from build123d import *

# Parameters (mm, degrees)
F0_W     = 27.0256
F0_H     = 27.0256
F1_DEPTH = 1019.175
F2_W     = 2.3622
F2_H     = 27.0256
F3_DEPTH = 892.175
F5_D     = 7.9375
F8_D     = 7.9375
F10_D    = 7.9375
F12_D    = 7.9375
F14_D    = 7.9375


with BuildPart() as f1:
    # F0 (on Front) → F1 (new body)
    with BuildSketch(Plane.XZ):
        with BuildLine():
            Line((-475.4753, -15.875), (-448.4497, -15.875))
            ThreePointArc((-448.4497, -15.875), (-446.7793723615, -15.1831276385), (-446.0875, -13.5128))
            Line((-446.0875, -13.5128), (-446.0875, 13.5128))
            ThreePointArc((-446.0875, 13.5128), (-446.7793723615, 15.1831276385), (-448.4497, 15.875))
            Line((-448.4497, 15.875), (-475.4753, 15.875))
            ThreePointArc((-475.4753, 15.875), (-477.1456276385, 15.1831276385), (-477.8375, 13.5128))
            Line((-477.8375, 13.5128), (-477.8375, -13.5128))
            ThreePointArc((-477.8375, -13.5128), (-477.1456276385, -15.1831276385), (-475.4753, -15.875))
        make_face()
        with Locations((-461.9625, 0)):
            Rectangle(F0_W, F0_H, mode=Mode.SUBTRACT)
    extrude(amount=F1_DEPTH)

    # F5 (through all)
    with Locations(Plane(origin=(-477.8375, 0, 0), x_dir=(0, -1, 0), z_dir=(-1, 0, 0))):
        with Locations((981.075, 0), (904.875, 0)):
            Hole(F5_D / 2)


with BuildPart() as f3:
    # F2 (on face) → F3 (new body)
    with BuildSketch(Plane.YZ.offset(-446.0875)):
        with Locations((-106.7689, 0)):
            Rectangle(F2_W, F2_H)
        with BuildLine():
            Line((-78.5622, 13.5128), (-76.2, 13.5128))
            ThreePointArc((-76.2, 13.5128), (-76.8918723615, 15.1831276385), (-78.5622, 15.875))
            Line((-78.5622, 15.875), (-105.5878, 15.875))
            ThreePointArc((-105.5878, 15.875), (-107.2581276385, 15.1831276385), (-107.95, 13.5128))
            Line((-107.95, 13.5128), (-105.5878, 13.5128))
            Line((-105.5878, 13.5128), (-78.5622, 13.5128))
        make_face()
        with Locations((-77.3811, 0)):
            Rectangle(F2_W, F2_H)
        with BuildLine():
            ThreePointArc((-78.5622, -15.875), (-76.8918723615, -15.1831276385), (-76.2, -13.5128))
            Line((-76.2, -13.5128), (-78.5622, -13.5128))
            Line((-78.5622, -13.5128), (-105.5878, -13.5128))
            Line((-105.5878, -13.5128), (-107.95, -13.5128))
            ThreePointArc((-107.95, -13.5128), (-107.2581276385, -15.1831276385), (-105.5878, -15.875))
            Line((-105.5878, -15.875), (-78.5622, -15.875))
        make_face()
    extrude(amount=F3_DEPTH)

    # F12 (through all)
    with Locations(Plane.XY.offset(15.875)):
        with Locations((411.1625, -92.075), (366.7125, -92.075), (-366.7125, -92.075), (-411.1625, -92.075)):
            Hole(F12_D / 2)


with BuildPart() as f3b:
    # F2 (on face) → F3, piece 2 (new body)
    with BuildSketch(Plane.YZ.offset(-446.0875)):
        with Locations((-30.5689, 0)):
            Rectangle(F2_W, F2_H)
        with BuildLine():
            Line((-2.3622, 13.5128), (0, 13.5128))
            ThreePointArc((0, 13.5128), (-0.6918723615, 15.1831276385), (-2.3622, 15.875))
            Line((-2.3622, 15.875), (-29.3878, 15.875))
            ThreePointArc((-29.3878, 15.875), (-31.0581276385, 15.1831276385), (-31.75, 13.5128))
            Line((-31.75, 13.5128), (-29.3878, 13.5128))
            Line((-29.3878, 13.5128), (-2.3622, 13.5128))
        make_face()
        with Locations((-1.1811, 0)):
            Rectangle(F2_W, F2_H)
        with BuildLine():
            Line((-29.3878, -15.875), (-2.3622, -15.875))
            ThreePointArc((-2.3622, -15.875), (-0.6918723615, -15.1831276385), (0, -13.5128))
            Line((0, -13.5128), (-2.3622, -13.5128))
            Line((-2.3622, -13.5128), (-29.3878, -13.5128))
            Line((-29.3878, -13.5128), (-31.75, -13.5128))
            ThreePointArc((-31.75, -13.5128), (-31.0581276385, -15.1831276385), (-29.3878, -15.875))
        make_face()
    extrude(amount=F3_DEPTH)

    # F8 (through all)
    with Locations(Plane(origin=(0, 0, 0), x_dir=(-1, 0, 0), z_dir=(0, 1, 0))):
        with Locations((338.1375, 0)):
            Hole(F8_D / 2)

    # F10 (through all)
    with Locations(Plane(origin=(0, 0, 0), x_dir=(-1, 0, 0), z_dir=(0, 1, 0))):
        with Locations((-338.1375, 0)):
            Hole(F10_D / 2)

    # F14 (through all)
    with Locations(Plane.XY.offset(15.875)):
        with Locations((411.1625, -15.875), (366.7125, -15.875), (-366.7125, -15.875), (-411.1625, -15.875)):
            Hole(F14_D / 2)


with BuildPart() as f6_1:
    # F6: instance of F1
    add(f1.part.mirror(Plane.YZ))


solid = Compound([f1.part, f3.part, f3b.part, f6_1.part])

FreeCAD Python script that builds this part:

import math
import FreeCAD as App
import Part
import Sketcher
from FreeCAD import Vector
Q = App.Units.Quantity


def add_polygon(sketch, points):
    """Adds a closed chain of lines whose ends are joined by coincident constraints."""
    first, n = sketch.GeometryCount, len(points)
    for a, b in zip(points, points[1:] + points[:1]):
        sketch.addGeometry(Part.LineSegment(App.Vector(*a, 0), App.Vector(*b, 0)), False)
    for i in range(n):
        sketch.addConstraint(Sketcher.Constraint("Coincident", first + i, 2, first + (i + 1) % n, 1))

doc = App.newDocument("Part")
params = doc.addObject("Spreadsheet::Sheet", "Params")
for row, (alias, value) in enumerate([
    ("sketch1_radius", "0.093 in"),
    ("sketch1_width", "1.064 in"),
    ("pad1_length", "40.125 in"),
    ("sketch2_diameter", "0.3125 in"),
    ("hole_diameter", "0.3125 in"),
    ("sketch3_radius", "0.093 in"),
    ("sketch3_width", "1.064 in"),
    ("pad2_length", "35.125 in"),
    ("sketch4_diameter", "0.3125 in"),
    ("hole2_diameter", "0.3125 in"),
    ("sketch5_radius", "0.093 in"),
    ("sketch5_width", "1.064 in"),
    ("pad3_length", "35.125 in"),
    ("sketch6_diameter", "0.3125 in"),
    ("hole3_diameter", "0.3125 in"),
    ("sketch7_diameter", "0.3125 in"),
    ("hole4_diameter", "0.3125 in"),
    ("sketch8_diameter", "0.3125 in"),
    ("hole5_diameter", "0.3125 in"),
], start=1):
    params.set(f"A{row}", alias)
    params.set(f"B{row}", "=" + value)
    params.setAlias(f"B{row}", alias)

body = doc.addObject("PartDesign::Body", "Body")

# Sketch on XZ plane
sketch1 = body.newObject("Sketcher::SketchObject", "Sketch")
sketch1.AttachmentSupport = (doc.getObject("XZ_Plane"), [""])
sketch1.MapMode = "FlatFace"
sketch1.addGeometry(Part.LineSegment(Vector(-475.5, -15.9, 0), Vector(-448.4, -15.9, 0)), False)  # 0
sketch1.addGeometry(Part.ArcOfCircle(Part.Circle(Vector(-448.4, -13.5, 0), Vector(0, 0, 1), 2.4), math.radians(-90), math.radians(0)), False)  # 1
sketch1.addGeometry(Part.LineSegment(Vector(-446.1, -13.5, 0), Vector(-446.1, 13.5, 0)), False)  # 2
sketch1.addGeometry(Part.ArcOfCircle(Part.Circle(Vector(-448.4, 13.5, 0), Vector(0, 0, 1), 2.4), math.radians(0), math.radians(90)), False)  # 3
sketch1.addGeometry(Part.LineSegment(Vector(-448.4, 15.9, 0), Vector(-475.5, 15.9, 0)), False)  # 4
sketch1.addGeometry(Part.ArcOfCircle(Part.Circle(Vector(-475.5, 13.5, 0), Vector(0, 0, 1), 2.4), math.radians(90), math.radians(180)), False)  # 5
sketch1.addGeometry(Part.LineSegment(Vector(-477.8, 13.5, 0), Vector(-477.8, -13.5, 0)), False)  # 6
sketch1.addGeometry(Part.ArcOfCircle(Part.Circle(Vector(-475.5, -13.5, 0), Vector(0, 0, 1), 2.4), math.radians(180), math.radians(270)), False)  # 7
add_polygon(sketch1, [(-448.4, -13.5), (-475.5, -13.5), (-475.5, 13.5), (-448.4, 13.5)])  # lines 8-11
sketch1.addConstraint(Sketcher.Constraint("Tangent", 0, 2, 1, 1))
sketch1.addConstraint(Sketcher.Constraint("Tangent", 1, 2, 2, 1))
sketch1.addConstraint(Sketcher.Constraint("Tangent", 2, 2, 3, 1))
sketch1.addConstraint(Sketcher.Constraint("Tangent", 3, 2, 4, 1))
sketch1.addConstraint(Sketcher.Constraint("Tangent", 4, 2, 5, 1))
sketch1.addConstraint(Sketcher.Constraint("Tangent", 5, 2, 6, 1))
sketch1.addConstraint(Sketcher.Constraint("Tangent", 6, 2, 7, 1))
sketch1.addConstraint(Sketcher.Constraint("Tangent", 7, 2, 0, 1))
sketch1.addConstraint(Sketcher.Constraint("Horizontal", 0))
sketch1.addConstraint(Sketcher.Constraint("Vertical", 2))
sketch1.addConstraint(Sketcher.Constraint("Horizontal", 4))
sketch1.addConstraint(Sketcher.Constraint("Vertical", 6))
sketch1.addConstraint(Sketcher.Constraint("Horizontal", 8))
sketch1.addConstraint(Sketcher.Constraint("Vertical", 9))
sketch1.addConstraint(Sketcher.Constraint("Horizontal", 10))
sketch1.addConstraint(Sketcher.Constraint("Vertical", 11))
sketch1.addConstraint(Sketcher.Constraint("Coincident", 8, 2, 7, 3))
sketch1.addConstraint(Sketcher.Constraint("Coincident", 9, 2, 5, 3))
sketch1.addConstraint(Sketcher.Constraint("Coincident", 10, 2, 3, 3))
sketch1.addConstraint(Sketcher.Constraint("Equal", 1, 3))
sketch1.addConstraint(Sketcher.Constraint("Equal", 10, 2))
sketch1.addConstraint(Sketcher.Constraint("Radius", 1, Q("0.093 in")))
sketch1.addConstraint(Sketcher.Constraint("DistanceX", 0, 1, 0, 2, Q("1.064 in")))
sketch1.addConstraint(Sketcher.Constraint("DistanceY", 1, 3, -1, 1, Q("0.532 in")))
sketch1.addConstraint(Sketcher.Constraint("DistanceX", 1, 2, -1, 1, Q("17.5625 in")))
sketch1.setExpression("Constraints[25]", "Params.sketch1_radius")
sketch1.setExpression("Constraints[26]", "Params.sketch1_width")
pad1 = body.newObject("PartDesign::Pad", "Pad")
pad1.Profile = sketch1
pad1.setExpression("Length", "Params.pad1_length")

# Sketch on YZ plane
sketch2 = body.newObject("Sketcher::SketchObject", "Sketch001")
sketch2.AttachmentSupport = (doc.getObject("YZ_Plane"), [""])
sketch2.MapMode = "FlatFace"
sketch2.AttachmentOffset = App.Placement(Vector(0, 0, -18.8125 * 25.4), App.Rotation())
sketch2.addGeometry(Part.Circle(Vector(-981.1, 0, 0), Vector(0, 0, 1), 4), False)
sketch2.addGeometry(Part.Circle(Vector(-904.9, 0, 0), Vector(0, 0, 1), 4), False)
sketch2.addConstraint(Sketcher.Constraint("Equal", 0, 1))
sketch2.addConstraint(Sketcher.Constraint("PointOnObject", 0, 3, -1))
sketch2.addConstraint(Sketcher.Constraint("PointOnObject", 1, 3, -1))
sketch2.addConstraint(Sketcher.Constraint("Diameter", 0, Q("0.3125 in")))
sketch2.addConstraint(Sketcher.Constraint("DistanceX", 0, 3, 1, 3, Q("3 in")))
sketch2.addConstraint(Sketcher.Constraint("DistanceX", 0, 3, -1, 1, Q("38.625 in")))
sketch2.setExpression("Constraints[3]", "Params.sketch2_diameter")
doc.recompute()
hole = body.newObject("PartDesign::Hole", "Hole")
hole.Profile = sketch2
hole.ThreadType = "None"
hole.setExpression("Diameter", "Params.hole_diameter")
hole.DepthType = "ThroughAll"
hole.Reversed = True
body2 = doc.addObject("PartDesign::Body", "Body001")

# Sketch on YZ plane
sketch3 = body2.newObject("Sketcher::SketchObject", "Sketch002")
sketch3.AttachmentSupport = (doc.getObject("YZ_Plane001"), [""])
sketch3.MapMode = "FlatFace"
sketch3.AttachmentOffset = App.Placement(Vector(0, 0, -17.5625 * 25.4), App.Rotation())
sketch3.addGeometry(Part.LineSegment(Vector(-108, 13.5, 0), Vector(-108, -13.5, 0)), False)  # 0
sketch3.addGeometry(Part.ArcOfCircle(Part.Circle(Vector(-105.6, -13.5, 0), Vector(0, 0, 1), 2.4), math.radians(180), math.radians(270)), False)  # 1
sketch3.addGeometry(Part.LineSegment(Vector(-105.6, -15.9, 0), Vector(-78.6, -15.9, 0)), False)  # 2
sketch3.addGeometry(Part.ArcOfCircle(Part.Circle(Vector(-78.6, -13.5, 0), Vector(0, 0, 1), 2.4), math.radians(-90), math.radians(0)), False)  # 3
sketch3.addGeometry(Part.LineSegment(Vector(-76.2, -13.5, 0), Vector(-76.2, 13.5, 0)), False)  # 4
sketch3.addGeometry(Part.ArcOfCircle(Part.Circle(Vector(-78.6, 13.5, 0), Vector(0, 0, 1), 2.4), math.radians(0), math.radians(90)), False)  # 5
sketch3.addGeometry(Part.LineSegment(Vector(-78.6, 15.9, 0), Vector(-105.6, 15.9, 0)), False)  # 6
sketch3.addGeometry(Part.ArcOfCircle(Part.Circle(Vector(-105.6, 13.5, 0), Vector(0, 0, 1), 2.4), math.radians(90), math.radians(180)), False)  # 7
add_polygon(sketch3, [(-105.6, -13.5), (-105.6, 13.5), (-78.6, 13.5), (-78.6, -13.5)])  # lines 8-11
sketch3.addConstraint(Sketcher.Constraint("Tangent", 0, 2, 1, 1))
sketch3.addConstraint(Sketcher.Constraint("Tangent", 1, 2, 2, 1))
sketch3.addConstraint(Sketcher.Constraint("Tangent", 2, 2, 3, 1))
sketch3.addConstraint(Sketcher.Constraint("Tangent", 3, 2, 4, 1))
sketch3.addConstraint(Sketcher.Constraint("Tangent", 4, 2, 5, 1))
sketch3.addConstraint(Sketcher.Constraint("Tangent", 5, 2, 6, 1))
sketch3.addConstraint(Sketcher.Constraint("Tangent", 6, 2, 7, 1))
sketch3.addConstraint(Sketcher.Constraint("Tangent", 7, 2, 0, 1))
sketch3.addConstraint(Sketcher.Constraint("Vertical", 0))
sketch3.addConstraint(Sketcher.Constraint("Horizontal", 2))
sketch3.addConstraint(Sketcher.Constraint("Vertical", 4))
sketch3.addConstraint(Sketcher.Constraint("Horizontal", 6))
sketch3.addConstraint(Sketcher.Constraint("Vertical", 8))
sketch3.addConstraint(Sketcher.Constraint("Horizontal", 9))
sketch3.addConstraint(Sketcher.Constraint("Vertical", 10))
sketch3.addConstraint(Sketcher.Constraint("Horizontal", 11))
sketch3.addConstraint(Sketcher.Constraint("Coincident", 8, 2, 7, 3))
sketch3.addConstraint(Sketcher.Constraint("Coincident", 9, 2, 5, 3))
sketch3.addConstraint(Sketcher.Constraint("Coincident", 10, 2, 3, 3))
sketch3.addConstraint(Sketcher.Constraint("Equal", 1, 3))
sketch3.addConstraint(Sketcher.Constraint("Equal", 11, 0))
sketch3.addConstraint(Sketcher.Constraint("DistanceX", 3, 2, -1, 1, Q("3 in")))
sketch3.addConstraint(Sketcher.Constraint("Radius", 1, Q("0.093 in")))
sketch3.addConstraint(Sketcher.Constraint("DistanceX", 2, 1, 2, 2, Q("1.064 in")))
sketch3.addConstraint(Sketcher.Constraint("DistanceY", 1, 3, -1, 1, Q("0.532 in")))
sketch3.setExpression("Constraints[26]", "Params.sketch3_radius")
sketch3.setExpression("Constraints[27]", "Params.sketch3_width")
pad2 = body2.newObject("PartDesign::Pad", "Pad001")
pad2.Profile = sketch3
pad2.setExpression("Length", "Params.pad2_length")

# Sketch on XY plane
sketch4 = body2.newObject("Sketcher::SketchObject", "Sketch003")
sketch4.AttachmentSupport = (doc.getObject("XY_Plane001"), [""])
sketch4.MapMode = "FlatFace"
sketch4.AttachmentOffset = App.Placement(Vector(0, 0, 0.625 * 25.4), App.Rotation())
sketch4.addGeometry(Part.Circle(Vector(411.2, -92.1, 0), Vector(0, 0, 1), 4), False)
sketch4.addGeometry(Part.Circle(Vector(366.7, -92.1, 0), Vector(0, 0, 1), 4), False)
sketch4.addGeometry(Part.Circle(Vector(-366.7, -92.1, 0), Vector(0, 0, 1), 4), False)
sketch4.addGeometry(Part.Circle(Vector(-411.2, -92.1, 0), Vector(0, 0, 1), 4), False)
sketch4.addConstraint(Sketcher.Constraint("Equal", 0, 1))
sketch4.addConstraint(Sketcher.Constraint("Equal", 1, 2))
sketch4.addConstraint(Sketcher.Constraint("Equal", 2, 3))
sketch4.addConstraint(Sketcher.Constraint("Symmetric", 1, 3, 2, 3, -2))
sketch4.addConstraint(Sketcher.Constraint("Symmetric", 0, 3, 3, 3, -2))
sketch4.addConstraint(Sketcher.Constraint("Horizontal", 0, 3, 1, 3))
sketch4.addConstraint(Sketcher.Constraint("Diameter", 0, Q("0.3125 in")))
sketch4.addConstraint(Sketcher.Constraint("DistanceX", 1, 3, 0, 3, Q("1.75 in")))
sketch4.addConstraint(Sketcher.Constraint("DistanceX", -1, 1, 0, 3, Q("16.1875 in")))
sketch4.addConstraint(Sketcher.Constraint("DistanceY", 0, 3, -1, 1, Q("3.625 in")))
sketch4.setExpression("Constraints[6]", "Params.sketch4_diameter")
doc.recompute()
hole2 = body2.newObject("PartDesign::Hole", "Hole001")
hole2.Profile = sketch4
hole2.ThreadType = "None"
hole2.setExpression("Diameter", "Params.hole2_diameter")
hole2.DepthType = "ThroughAll"
body3 = doc.addObject("PartDesign::Body", "Body002")

# Sketch on YZ plane
sketch5 = body3.newObject("Sketcher::SketchObject", "Sketch004")
sketch5.AttachmentSupport = (doc.getObject("YZ_Plane002"), [""])
sketch5.MapMode = "FlatFace"
sketch5.AttachmentOffset = App.Placement(Vector(0, 0, -17.5625 * 25.4), App.Rotation())
sketch5.addGeometry(Part.LineSegment(Vector(-31.8, 13.5, 0), Vector(-31.8, -13.5, 0)), False)  # 0
sketch5.addGeometry(Part.ArcOfCircle(Part.Circle(Vector(-29.4, -13.5, 0), Vector(0, 0, 1), 2.4), math.radians(180), math.radians(270)), False)  # 1
sketch5.addGeometry(Part.LineSegment(Vector(-29.4, -15.9, 0), Vector(-2.4, -15.9, 0)), False)  # 2
sketch5.addGeometry(Part.ArcOfCircle(Part.Circle(Vector(-2.4, -13.5, 0), Vector(0, 0, 1), 2.4), math.radians(-90), math.radians(0)), False)  # 3
sketch5.addGeometry(Part.LineSegment(Vector(0, -13.5, 0), Vector(0, 13.5, 0)), False)  # 4
sketch5.addGeometry(Part.ArcOfCircle(Part.Circle(Vector(-2.4, 13.5, 0), Vector(0, 0, 1), 2.4), math.radians(0), math.radians(90)), False)  # 5
sketch5.addGeometry(Part.LineSegment(Vector(-2.4, 15.9, 0), Vector(-29.4, 15.9, 0)), False)  # 6
sketch5.addGeometry(Part.ArcOfCircle(Part.Circle(Vector(-29.4, 13.5, 0), Vector(0, 0, 1), 2.4), math.radians(90), math.radians(180)), False)  # 7
add_polygon(sketch5, [(-29.4, -13.5), (-29.4, 13.5), (-2.4, 13.5), (-2.4, -13.5)])  # lines 8-11
sketch5.addConstraint(Sketcher.Constraint("Tangent", 0, 2, 1, 1))
sketch5.addConstraint(Sketcher.Constraint("Tangent", 1, 2, 2, 1))
sketch5.addConstraint(Sketcher.Constraint("Tangent", 2, 2, 3, 1))
sketch5.addConstraint(Sketcher.Constraint("Tangent", 3, 2, 4, 1))
sketch5.addConstraint(Sketcher.Constraint("Tangent", 4, 2, 5, 1))
sketch5.addConstraint(Sketcher.Constraint("Tangent", 5, 2, 6, 1))
sketch5.addConstraint(Sketcher.Constraint("Tangent", 6, 2, 7, 1))
sketch5.addConstraint(Sketcher.Constraint("Tangent", 7, 2, 0, 1))
sketch5.addConstraint(Sketcher.Constraint("Vertical", 0))
sketch5.addConstraint(Sketcher.Constraint("Horizontal", 2))
sketch5.addConstraint(Sketcher.Constraint("Vertical", 4))
sketch5.addConstraint(Sketcher.Constraint("Horizontal", 6))
sketch5.addConstraint(Sketcher.Constraint("Vertical", 8))
sketch5.addConstraint(Sketcher.Constraint("Horizontal", 9))
sketch5.addConstraint(Sketcher.Constraint("Vertical", 10))
sketch5.addConstraint(Sketcher.Constraint("Horizontal", 11))
sketch5.addConstraint(Sketcher.Constraint("Coincident", 8, 2, 7, 3))
sketch5.addConstraint(Sketcher.Constraint("Coincident", 9, 2, 5, 3))
sketch5.addConstraint(Sketcher.Constraint("Coincident", 10, 2, 3, 3))
sketch5.addConstraint(Sketcher.Constraint("Equal", 1, 3))
sketch5.addConstraint(Sketcher.Constraint("Symmetric", 3, 2, 4, 2, -1, 1))
sketch5.addConstraint(Sketcher.Constraint("Equal", 11, 0))
sketch5.addConstraint(Sketcher.Constraint("Radius", 1, Q("0.093 in")))
sketch5.addConstraint(Sketcher.Constraint("DistanceX", 2, 1, 2, 2, Q("1.064 in")))
sketch5.setExpression("Constraints[26]", "Params.sketch5_radius")
sketch5.setExpression("Constraints[27]", "Params.sketch5_width")
pad3 = body3.newObject("PartDesign::Pad", "Pad002")
pad3.Profile = sketch5
pad3.setExpression("Length", "Params.pad3_length")

# Sketch on XZ plane
sketch6 = body3.newObject("Sketcher::SketchObject", "Sketch005")
sketch6.AttachmentSupport = (doc.getObject("XZ_Plane002"), [""])
sketch6.MapMode = "FlatFace"
sketch6.addGeometry(Part.Circle(Vector(-338.1, 0, 0), Vector(0, 0, 1), 4), False)
sketch6.addConstraint(Sketcher.Constraint("PointOnObject", 0, 3, -1))
sketch6.addConstraint(Sketcher.Constraint("Diameter", 0, Q("0.3125 in")))
sketch6.addConstraint(Sketcher.Constraint("DistanceX", 0, 3, -1, 1, Q("13.3125 in")))
sketch6.setExpression("Constraints[1]", "Params.sketch6_diameter")
doc.recompute()
hole3 = body3.newObject("PartDesign::Hole", "Hole002")
hole3.Profile = sketch6
hole3.ThreadType = "None"
hole3.setExpression("Diameter", "Params.hole3_diameter")
hole3.DepthType = "ThroughAll"
hole3.Reversed = True

# Sketch on XZ plane
sketch7 = body3.newObject("Sketcher::SketchObject", "Sketch006")
sketch7.AttachmentSupport = (doc.getObject("XZ_Plane002"), [""])
sketch7.MapMode = "FlatFace"
sketch7.addGeometry(Part.Circle(Vector(338.1, 0, 0), Vector(0, 0, 1), 4), False)
sketch7.addConstraint(Sketcher.Constraint("PointOnObject", 0, 3, -1))
sketch7.addConstraint(Sketcher.Constraint("Diameter", 0, Q("0.3125 in")))
sketch7.addConstraint(Sketcher.Constraint("DistanceX", -1, 1, 0, 3, Q("13.3125 in")))
sketch7.setExpression("Constraints[1]", "Params.sketch7_diameter")
doc.recompute()
hole4 = body3.newObject("PartDesign::Hole", "Hole003")
hole4.Profile = sketch7
hole4.ThreadType = "None"
hole4.setExpression("Diameter", "Params.hole4_diameter")
hole4.DepthType = "ThroughAll"
hole4.Reversed = True

# Sketch on XY plane
sketch8 = body3.newObject("Sketcher::SketchObject", "Sketch007")
sketch8.AttachmentSupport = (doc.getObject("XY_Plane002"), [""])
sketch8.MapMode = "FlatFace"
sketch8.AttachmentOffset = App.Placement(Vector(0, 0, 0.625 * 25.4), App.Rotation())
sketch8.addGeometry(Part.Circle(Vector(411.2, -15.9, 0), Vector(0, 0, 1), 4), False)
sketch8.addGeometry(Part.Circle(Vector(366.7, -15.9, 0), Vector(0, 0, 1), 4), False)
sketch8.addGeometry(Part.Circle(Vector(-366.7, -15.9, 0), Vector(0, 0, 1), 4), False)
sketch8.addGeometry(Part.Circle(Vector(-411.2, -15.9, 0), Vector(0, 0, 1), 4), False)
sketch8.addConstraint(Sketcher.Constraint("Equal", 0, 1))
sketch8.addConstraint(Sketcher.Constraint("Equal", 1, 2))
sketch8.addConstraint(Sketcher.Constraint("Equal", 2, 3))
sketch8.addConstraint(Sketcher.Constraint("Symmetric", 1, 3, 2, 3, -2))
sketch8.addConstraint(Sketcher.Constraint("Symmetric", 0, 3, 3, 3, -2))
sketch8.addConstraint(Sketcher.Constraint("Horizontal", 0, 3, 1, 3))
sketch8.addConstraint(Sketcher.Constraint("Diameter", 0, Q("0.3125 in")))
sketch8.addConstraint(Sketcher.Constraint("DistanceX", 1, 3, 0, 3, Q("1.75 in")))
sketch8.addConstraint(Sketcher.Constraint("DistanceX", -1, 1, 0, 3, Q("16.1875 in")))
sketch8.addConstraint(Sketcher.Constraint("DistanceY", 0, 3, -1, 1, Q("0.625 in")))
sketch8.setExpression("Constraints[6]", "Params.sketch8_diameter")
doc.recompute()
hole5 = body3.newObject("PartDesign::Hole", "Hole004")
hole5.Profile = sketch8
hole5.ThreadType = "None"
hole5.setExpression("Diameter", "Params.hole5_diameter")
hole5.DepthType = "ThroughAll"
body4 = doc.addObject("PartDesign::Body", "Body003")
doc.recompute()

mirroring = doc.addObject("Part::Mirroring", "Mirroring")
mirroring.Source = body
mirroring.Base = Vector(0, 0, 0)
mirroring.Normal = Vector(1, 0, 0)
body4.BaseFeature = mirroring
doc.recompute()
mirroring.Visibility = False

doc.recompute()
